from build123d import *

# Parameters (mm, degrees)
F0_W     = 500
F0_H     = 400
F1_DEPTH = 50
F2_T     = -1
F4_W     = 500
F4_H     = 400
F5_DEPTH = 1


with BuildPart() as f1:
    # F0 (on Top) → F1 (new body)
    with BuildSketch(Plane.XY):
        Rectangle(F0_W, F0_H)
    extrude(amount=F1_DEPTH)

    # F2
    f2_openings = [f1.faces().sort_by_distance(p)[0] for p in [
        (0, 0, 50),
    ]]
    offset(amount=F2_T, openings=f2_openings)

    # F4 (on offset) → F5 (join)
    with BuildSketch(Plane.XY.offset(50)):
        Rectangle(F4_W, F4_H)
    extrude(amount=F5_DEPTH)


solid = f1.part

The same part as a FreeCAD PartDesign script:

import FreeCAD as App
import Part
import Sketcher


def faces_at(feature, points):
    """Names of the faces that lie closest to the given points."""
    faces = feature.Shape.Faces
    near = lambda p: min(range(len(faces)), key=lambda i: faces[i].distToShape(Part.Vertex(*p))[0])
    return sorted({f"Face{near(p) + 1}" for p in points})

doc = App.newDocument("Part")
body = doc.addObject("PartDesign::Body", "Body")

# Sketch on XY plane
sketch1 = doc.addObject("Sketcher::SketchObject", "Sketch")
body.addObject(sketch1)
sketch1.AttachmentSupport = (doc.XY_Plane, [""])
sketch1.MapMode = "FlatFace"
sketch1.addGeometry(Part.LineSegment(App.Vector(-250, 200, 0), App.Vector(-250, -200, 0)), False)
sketch1.addGeometry(Part.LineSegment(App.Vector(-250, -200, 0), App.Vector(250, -200, 0)), False)
sketch1.addGeometry(Part.LineSegment(App.Vector(250, -200, 0), App.Vector(250, 200, 0)), False)
sketch1.addGeometry(Part.LineSegment(App.Vector(250, 200, 0), App.Vector(-250, 200, 0)), False)
sketch1.addConstraint(Sketcher.Constraint("Coincident", 0, 2, 1, 1))
sketch1.addConstraint(Sketcher.Constraint("Coincident", 1, 2, 2, 1))
sketch1.addConstraint(Sketcher.Constraint("Coincident", 2, 2, 3, 1))
sketch1.addConstraint(Sketcher.Constraint("Coincident", 3, 2, 0, 1))
sketch1.addConstraint(Sketcher.Constraint("Vertical", 0))
sketch1.addConstraint(Sketcher.Constraint("Horizontal", 1))
sketch1.addConstraint(Sketcher.Constraint("Vertical", 2))
sketch1.addConstraint(Sketcher.Constraint("Horizontal", 3))
sketch1.addConstraint(Sketcher.Constraint("Symmetric", 0, 2, 2, 2, -1, 1))
sketch1.addConstraint(Sketcher.Constraint("DistanceX", 1, 1, 1, 2, 500.0))
sketch1.addConstraint(Sketcher.Constraint("DistanceY", 0, 2, 0, 1, 400.0))
pad1 = doc.addObject("PartDesign::Pad", "Pad")
body.addObject(pad1)
pad1.Profile = sketch1
pad1.Length = 50
doc.recompute()

thickness = doc.addObject("PartDesign::Thickness", "Thickness")
body.addObject(thickness)
thickness.Base = (pad1, faces_at(pad1, [(0, 0, 50)]))
thickness.Value = 1
thickness.Reversed = True
thickness.Join = "Arc"

# Sketch on XY plane
sketch2 = doc.addObject("Sketcher::SketchObject", "Sketch001")
body.addObject(sketch2)
sketch2.AttachmentSupport = (doc.XY_Plane, [""])
sketch2.MapMode = "FlatFace"
sketch2.AttachmentOffset = App.Placement(App.Vector(0, 0, 50), App.Rotation())
sketch2.addGeometry(Part.LineSegment(App.Vector(-250, 200, 0), App.Vector(-250, -200, 0)), False)
sketch2.addGeometry(Part.LineSegment(App.Vector(-250, -200, 0), App.Vector(250, -200, 0)), False)
sketch2.addGeometry(Part.LineSegment(App.Vector(250, -200, 0), App.Vector(250, 200, 0)), False)
sketch2.addGeometry(Part.LineSegment(App.Vector(250, 200, 0), App.Vector(-250, 200, 0)), False)
sketch2.addConstraint(Sketcher.Constraint("Coincident", 0, 2, 1, 1))
sketch2.addConstraint(Sketcher.Constraint("Coincident", 1, 2, 2, 1))
sketch2.addConstraint(Sketcher.Constraint("Coincident", 2, 2, 3, 1))
sketch2.addConstraint(Sketcher.Constraint("Coincident", 3, 2, 0, 1))
sketch2.addConstraint(Sketcher.Constraint("Vertical", 0))
sketch2.addConstraint(Sketcher.Constraint("Horizontal", 1))
sketch2.addConstraint(Sketcher.Constraint("Vertical", 2))
sketch2.addConstraint(Sketcher.Constraint("Horizontal", 3))
sketch2.addConstraint(Sketcher.Constraint("Symmetric", 0, 2, 2, 2, -1, 1))
sketch2.addConstraint(Sketcher.Constraint("DistanceX", 1, 1, 1, 2, 500.0))
sketch2.addConstraint(Sketcher.Constraint("DistanceY", 0, 2, 0, 1, 400.0))
pad2 = doc.addObject("PartDesign::Pad", "Pad001")
body.addObject(pad2)
pad2.Profile = sketch2
pad2.Length = 1

doc.recompute()
